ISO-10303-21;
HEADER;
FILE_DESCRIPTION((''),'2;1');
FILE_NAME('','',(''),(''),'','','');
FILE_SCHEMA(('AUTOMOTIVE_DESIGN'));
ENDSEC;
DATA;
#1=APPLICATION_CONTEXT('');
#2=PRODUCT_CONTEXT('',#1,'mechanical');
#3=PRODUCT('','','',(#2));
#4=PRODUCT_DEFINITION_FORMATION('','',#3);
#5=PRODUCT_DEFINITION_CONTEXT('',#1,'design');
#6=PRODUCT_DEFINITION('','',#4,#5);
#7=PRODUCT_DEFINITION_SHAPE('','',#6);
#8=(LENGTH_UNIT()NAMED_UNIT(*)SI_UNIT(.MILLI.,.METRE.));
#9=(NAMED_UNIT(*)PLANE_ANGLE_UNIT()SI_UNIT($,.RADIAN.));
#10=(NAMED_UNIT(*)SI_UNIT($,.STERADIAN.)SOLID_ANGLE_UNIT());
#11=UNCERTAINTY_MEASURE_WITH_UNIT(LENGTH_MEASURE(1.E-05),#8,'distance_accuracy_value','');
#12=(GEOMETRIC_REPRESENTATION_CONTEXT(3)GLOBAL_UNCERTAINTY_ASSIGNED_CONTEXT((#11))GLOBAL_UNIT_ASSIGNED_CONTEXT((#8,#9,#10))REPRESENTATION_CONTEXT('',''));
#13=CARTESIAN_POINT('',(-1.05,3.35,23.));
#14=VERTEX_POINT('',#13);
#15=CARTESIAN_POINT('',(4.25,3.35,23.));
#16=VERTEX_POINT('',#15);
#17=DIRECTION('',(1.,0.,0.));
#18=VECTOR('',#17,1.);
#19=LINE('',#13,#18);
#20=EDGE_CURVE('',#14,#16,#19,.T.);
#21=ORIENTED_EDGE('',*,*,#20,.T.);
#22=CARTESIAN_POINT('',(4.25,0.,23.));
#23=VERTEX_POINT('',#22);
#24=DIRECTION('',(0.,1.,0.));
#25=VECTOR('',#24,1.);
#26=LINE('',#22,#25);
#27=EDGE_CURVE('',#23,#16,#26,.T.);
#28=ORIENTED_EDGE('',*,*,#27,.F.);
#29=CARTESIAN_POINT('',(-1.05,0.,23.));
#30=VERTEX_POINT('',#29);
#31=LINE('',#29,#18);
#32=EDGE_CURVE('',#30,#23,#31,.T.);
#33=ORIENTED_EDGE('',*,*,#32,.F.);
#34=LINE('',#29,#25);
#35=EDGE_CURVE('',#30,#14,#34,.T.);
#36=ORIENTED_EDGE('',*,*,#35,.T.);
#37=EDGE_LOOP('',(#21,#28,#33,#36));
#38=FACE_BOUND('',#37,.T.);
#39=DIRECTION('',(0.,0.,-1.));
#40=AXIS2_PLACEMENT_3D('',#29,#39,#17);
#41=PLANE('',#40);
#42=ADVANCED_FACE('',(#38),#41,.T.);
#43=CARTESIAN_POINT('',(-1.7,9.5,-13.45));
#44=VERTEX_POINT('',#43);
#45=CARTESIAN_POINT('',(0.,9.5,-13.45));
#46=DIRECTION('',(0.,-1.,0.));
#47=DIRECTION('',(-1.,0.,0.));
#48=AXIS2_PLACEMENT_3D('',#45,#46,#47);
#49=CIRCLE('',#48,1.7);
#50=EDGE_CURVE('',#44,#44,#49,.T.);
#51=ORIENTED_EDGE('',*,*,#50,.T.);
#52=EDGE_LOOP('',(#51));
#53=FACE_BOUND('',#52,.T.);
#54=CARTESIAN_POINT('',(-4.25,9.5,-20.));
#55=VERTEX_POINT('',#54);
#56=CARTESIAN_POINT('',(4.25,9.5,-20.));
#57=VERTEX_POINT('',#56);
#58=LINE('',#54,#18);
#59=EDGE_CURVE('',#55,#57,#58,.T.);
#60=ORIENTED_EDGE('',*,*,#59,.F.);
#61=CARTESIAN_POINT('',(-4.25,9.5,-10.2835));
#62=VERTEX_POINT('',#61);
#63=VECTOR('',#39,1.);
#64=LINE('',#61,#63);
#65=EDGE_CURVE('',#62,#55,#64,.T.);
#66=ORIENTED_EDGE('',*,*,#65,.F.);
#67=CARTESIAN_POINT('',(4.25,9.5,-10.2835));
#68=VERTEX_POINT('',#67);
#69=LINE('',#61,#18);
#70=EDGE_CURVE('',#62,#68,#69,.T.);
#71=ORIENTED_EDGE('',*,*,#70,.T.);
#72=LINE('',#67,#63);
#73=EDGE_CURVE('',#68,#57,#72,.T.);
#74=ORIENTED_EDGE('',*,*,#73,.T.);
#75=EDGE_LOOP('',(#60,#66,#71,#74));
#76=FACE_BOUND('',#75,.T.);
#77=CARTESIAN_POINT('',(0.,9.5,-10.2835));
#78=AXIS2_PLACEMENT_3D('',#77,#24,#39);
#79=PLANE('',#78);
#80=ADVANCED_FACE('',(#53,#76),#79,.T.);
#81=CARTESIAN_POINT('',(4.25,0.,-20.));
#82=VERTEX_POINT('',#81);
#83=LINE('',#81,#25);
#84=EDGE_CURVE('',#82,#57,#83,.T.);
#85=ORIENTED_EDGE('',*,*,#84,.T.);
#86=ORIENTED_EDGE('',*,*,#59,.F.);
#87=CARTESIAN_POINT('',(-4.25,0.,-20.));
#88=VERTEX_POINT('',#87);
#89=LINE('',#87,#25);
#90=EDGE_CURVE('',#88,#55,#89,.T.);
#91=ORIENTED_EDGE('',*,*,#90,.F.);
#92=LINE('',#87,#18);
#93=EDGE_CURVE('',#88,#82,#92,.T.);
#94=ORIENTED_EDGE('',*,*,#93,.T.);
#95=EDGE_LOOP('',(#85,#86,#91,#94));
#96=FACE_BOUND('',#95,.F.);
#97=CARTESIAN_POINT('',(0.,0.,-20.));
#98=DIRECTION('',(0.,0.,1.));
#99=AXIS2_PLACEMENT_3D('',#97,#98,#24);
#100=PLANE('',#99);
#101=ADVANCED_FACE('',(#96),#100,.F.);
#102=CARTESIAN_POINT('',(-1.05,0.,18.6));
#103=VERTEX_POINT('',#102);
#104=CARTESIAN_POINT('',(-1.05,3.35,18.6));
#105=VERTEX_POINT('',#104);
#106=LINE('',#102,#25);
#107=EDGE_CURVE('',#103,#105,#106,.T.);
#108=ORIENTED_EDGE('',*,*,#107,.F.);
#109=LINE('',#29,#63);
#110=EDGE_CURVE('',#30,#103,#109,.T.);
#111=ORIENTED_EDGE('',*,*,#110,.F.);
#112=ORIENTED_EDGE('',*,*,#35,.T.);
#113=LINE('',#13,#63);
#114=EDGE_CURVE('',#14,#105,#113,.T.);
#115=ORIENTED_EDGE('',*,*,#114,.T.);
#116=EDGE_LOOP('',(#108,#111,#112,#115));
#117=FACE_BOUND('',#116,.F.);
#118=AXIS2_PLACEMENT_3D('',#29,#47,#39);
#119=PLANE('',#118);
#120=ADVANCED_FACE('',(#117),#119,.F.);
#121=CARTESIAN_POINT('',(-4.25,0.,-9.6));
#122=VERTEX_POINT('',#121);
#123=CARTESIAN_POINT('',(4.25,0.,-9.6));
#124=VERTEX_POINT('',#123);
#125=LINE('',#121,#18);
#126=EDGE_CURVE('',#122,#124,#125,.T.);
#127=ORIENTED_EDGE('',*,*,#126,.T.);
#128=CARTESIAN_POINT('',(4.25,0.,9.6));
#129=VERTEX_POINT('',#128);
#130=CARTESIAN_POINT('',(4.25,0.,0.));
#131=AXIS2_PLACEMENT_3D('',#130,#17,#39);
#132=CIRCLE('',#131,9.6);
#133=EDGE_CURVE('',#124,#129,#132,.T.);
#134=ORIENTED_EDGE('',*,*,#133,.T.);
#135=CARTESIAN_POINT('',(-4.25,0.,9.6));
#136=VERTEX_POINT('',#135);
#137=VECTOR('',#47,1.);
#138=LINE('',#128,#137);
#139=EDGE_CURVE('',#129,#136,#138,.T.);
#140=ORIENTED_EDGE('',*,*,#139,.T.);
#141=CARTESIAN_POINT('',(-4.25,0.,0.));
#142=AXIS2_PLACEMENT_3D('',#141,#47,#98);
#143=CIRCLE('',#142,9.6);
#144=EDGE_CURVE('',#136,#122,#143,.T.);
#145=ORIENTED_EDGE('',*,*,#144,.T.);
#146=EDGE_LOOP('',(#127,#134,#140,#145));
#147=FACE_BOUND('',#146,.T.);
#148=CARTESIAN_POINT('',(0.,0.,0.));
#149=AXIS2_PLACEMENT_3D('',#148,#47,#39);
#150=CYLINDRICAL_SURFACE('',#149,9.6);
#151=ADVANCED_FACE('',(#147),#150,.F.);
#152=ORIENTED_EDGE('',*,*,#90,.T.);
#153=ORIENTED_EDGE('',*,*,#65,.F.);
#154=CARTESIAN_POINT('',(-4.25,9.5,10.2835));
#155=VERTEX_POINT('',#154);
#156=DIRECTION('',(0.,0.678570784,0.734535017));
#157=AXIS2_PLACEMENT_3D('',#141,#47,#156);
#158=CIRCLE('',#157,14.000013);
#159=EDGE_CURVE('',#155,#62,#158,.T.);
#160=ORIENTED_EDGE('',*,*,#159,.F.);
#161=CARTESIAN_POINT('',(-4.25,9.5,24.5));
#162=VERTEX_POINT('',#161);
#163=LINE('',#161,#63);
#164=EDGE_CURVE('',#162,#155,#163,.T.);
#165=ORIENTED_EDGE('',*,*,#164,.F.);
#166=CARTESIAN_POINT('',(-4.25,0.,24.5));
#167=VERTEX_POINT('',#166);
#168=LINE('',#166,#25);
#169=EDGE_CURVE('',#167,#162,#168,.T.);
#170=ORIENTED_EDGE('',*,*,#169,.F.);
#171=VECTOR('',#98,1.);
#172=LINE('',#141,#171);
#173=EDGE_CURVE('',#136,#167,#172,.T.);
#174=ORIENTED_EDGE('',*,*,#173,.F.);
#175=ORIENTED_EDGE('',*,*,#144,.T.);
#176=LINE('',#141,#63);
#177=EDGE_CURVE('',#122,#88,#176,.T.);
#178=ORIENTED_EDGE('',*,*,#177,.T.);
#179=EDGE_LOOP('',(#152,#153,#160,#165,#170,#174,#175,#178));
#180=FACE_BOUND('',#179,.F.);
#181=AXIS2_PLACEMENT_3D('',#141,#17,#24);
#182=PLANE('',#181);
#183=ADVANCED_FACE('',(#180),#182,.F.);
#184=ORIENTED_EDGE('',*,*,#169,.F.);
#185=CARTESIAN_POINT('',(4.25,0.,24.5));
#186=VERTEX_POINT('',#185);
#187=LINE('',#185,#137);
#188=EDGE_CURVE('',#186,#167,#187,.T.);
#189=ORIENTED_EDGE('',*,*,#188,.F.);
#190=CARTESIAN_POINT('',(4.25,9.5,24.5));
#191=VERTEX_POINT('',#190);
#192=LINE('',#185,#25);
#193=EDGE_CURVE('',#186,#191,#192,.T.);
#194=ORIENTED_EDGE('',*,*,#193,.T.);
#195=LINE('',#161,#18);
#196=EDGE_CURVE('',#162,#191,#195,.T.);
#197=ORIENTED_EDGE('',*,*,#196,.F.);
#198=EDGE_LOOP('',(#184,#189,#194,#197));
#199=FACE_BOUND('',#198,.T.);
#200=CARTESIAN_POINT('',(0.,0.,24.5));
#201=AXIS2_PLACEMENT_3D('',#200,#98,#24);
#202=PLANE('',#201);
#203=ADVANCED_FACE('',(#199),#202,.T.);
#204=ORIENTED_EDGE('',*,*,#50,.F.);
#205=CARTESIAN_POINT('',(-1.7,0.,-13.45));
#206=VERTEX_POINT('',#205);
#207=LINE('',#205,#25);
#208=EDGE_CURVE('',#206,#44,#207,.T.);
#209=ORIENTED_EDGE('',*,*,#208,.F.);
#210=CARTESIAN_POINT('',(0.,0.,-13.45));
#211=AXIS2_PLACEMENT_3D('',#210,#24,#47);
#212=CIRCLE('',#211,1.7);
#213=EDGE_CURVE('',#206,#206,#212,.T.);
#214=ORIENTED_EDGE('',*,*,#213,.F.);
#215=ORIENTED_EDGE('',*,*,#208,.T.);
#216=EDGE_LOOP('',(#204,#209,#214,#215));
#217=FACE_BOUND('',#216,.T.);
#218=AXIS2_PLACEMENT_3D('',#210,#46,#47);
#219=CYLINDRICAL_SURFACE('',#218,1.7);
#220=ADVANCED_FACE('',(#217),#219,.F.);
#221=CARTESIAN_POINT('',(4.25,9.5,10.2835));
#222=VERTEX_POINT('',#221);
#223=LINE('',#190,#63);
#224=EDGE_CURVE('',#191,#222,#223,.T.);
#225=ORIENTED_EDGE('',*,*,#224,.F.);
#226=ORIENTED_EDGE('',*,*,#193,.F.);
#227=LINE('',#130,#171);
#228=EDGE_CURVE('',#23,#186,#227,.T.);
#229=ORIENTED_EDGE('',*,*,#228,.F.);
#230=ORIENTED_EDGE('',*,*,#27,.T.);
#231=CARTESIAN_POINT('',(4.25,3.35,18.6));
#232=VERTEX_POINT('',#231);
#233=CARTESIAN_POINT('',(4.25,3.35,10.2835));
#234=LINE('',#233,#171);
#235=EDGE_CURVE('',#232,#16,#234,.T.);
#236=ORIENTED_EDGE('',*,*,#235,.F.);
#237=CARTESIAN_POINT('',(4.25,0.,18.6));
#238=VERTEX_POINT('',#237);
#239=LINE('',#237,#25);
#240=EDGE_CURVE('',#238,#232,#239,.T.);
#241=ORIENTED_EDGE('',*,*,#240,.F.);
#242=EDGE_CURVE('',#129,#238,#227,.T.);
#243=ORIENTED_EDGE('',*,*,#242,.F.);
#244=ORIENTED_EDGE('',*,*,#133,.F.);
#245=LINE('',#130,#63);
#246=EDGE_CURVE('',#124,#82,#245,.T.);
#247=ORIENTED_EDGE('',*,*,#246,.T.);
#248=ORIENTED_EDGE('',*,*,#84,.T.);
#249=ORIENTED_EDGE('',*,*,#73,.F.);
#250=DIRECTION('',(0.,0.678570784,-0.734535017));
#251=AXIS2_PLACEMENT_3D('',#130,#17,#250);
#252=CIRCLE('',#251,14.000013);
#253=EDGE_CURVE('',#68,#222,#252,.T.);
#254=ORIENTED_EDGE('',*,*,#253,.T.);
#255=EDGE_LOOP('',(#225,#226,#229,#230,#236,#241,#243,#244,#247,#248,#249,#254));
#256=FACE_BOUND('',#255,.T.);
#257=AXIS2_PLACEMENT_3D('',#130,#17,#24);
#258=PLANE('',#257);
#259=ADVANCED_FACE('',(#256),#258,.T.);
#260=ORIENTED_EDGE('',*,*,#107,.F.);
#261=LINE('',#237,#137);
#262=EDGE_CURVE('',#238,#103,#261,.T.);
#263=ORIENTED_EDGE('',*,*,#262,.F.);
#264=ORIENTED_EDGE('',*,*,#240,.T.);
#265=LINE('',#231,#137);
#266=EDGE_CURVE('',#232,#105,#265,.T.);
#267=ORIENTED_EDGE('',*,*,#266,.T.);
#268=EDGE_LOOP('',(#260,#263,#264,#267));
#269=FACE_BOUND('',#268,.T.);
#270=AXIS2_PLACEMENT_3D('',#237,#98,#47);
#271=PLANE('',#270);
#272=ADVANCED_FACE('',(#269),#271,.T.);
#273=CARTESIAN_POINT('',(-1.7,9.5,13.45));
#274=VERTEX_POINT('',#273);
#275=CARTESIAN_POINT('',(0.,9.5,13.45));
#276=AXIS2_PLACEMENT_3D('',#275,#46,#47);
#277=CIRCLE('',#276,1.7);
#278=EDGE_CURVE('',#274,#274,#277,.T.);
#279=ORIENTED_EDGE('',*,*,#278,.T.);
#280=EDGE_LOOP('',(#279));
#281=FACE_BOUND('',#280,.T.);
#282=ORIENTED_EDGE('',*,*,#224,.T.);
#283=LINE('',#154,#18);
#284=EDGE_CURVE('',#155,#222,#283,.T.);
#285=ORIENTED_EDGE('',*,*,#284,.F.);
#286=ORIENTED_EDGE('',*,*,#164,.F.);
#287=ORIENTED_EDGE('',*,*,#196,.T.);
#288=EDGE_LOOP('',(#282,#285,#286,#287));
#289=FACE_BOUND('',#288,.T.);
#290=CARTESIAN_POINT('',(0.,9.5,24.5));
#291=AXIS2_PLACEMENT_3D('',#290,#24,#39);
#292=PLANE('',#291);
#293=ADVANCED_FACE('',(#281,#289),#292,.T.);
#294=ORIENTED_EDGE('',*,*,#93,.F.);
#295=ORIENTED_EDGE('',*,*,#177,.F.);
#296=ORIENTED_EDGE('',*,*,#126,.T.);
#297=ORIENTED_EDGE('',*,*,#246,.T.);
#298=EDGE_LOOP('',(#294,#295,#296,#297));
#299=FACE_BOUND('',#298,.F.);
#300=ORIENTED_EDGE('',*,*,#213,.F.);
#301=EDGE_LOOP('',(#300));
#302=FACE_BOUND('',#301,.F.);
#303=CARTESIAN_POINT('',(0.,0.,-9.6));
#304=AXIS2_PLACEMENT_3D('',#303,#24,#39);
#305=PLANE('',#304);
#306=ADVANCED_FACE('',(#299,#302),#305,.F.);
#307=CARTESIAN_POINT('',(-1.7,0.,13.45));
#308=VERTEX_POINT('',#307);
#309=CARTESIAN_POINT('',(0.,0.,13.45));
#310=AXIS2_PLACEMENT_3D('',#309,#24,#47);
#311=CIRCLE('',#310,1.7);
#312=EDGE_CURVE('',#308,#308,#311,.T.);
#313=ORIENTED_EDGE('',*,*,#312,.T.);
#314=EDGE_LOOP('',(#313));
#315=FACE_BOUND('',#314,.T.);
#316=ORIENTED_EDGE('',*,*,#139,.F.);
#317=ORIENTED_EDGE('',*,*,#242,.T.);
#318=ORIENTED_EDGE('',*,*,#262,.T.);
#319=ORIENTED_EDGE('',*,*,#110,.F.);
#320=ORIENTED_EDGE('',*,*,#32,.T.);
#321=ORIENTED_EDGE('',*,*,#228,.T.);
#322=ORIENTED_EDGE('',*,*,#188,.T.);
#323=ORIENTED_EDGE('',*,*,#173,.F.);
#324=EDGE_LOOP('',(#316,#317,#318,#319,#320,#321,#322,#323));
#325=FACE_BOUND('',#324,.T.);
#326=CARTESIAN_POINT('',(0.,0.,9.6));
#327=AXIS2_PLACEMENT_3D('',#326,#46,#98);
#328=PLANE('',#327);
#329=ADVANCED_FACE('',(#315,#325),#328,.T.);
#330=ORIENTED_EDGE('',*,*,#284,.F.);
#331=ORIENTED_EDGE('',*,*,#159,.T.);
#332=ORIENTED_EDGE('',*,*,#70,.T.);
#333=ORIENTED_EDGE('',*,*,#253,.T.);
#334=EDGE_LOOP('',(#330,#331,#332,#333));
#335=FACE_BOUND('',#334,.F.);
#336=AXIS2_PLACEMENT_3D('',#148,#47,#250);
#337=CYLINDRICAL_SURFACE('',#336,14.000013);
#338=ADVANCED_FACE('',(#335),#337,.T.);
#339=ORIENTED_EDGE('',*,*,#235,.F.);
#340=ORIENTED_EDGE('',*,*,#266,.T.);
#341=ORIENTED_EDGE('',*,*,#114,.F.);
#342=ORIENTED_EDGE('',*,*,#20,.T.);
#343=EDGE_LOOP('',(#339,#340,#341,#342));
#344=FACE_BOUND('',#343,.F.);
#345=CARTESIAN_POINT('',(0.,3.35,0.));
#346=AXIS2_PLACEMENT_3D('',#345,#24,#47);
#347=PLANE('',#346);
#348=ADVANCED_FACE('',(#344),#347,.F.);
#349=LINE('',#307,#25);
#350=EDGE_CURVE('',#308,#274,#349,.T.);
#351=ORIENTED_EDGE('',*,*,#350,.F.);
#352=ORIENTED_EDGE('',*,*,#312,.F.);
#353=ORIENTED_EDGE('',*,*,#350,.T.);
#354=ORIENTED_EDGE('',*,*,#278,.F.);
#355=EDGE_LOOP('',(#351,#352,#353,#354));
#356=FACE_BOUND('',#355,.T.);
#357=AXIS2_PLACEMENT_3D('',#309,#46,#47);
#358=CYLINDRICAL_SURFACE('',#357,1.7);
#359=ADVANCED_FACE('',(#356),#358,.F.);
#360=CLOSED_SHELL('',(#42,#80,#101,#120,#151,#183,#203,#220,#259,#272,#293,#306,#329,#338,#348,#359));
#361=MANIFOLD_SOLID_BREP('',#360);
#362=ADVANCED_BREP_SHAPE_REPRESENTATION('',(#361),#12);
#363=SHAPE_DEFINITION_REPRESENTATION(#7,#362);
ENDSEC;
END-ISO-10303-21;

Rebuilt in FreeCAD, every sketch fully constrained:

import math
import FreeCAD as App
import Part
import Sketcher
from FreeCAD import Vector


def add_polygon(sketch, points):
    """Adds a closed chain of lines whose ends are joined by coincident constraints."""
    first, n = sketch.GeometryCount, len(points)
    for a, b in zip(points, points[1:] + points[:1]):
        sketch.addGeometry(Part.LineSegment(App.Vector(*a, 0), App.Vector(*b, 0)), False)
    for i in range(n):
        sketch.addConstraint(Sketcher.Constraint("Coincident", first + i, 2, first + (i + 1) % n, 1))

doc = App.newDocument("Part")
body = doc.addObject("PartDesign::Body", "Body")

# Sketch on YZ plane
sketch1 = body.newObject("Sketcher::SketchObject", "Sketch")
sketch1.AttachmentSupport = (doc.getObject("YZ_Plane"), [""])
sketch1.MapMode = "FlatFace"
sketch1.addGeometry(Part.LineSegment(Vector(0, -10, 0), Vector(0, -20, 0)), False)
sketch1.addGeometry(Part.LineSegment(Vector(0, -20, 0), Vector(10, -20, 0)), False)
sketch1.addGeometry(Part.LineSegment(Vector(10, -20, 0), Vector(10, -10, 0)), False)
sketch1.addGeometry(Part.ArcOfCircle(Part.Circle(Vector(0, 0, 0), Vector(0, 0, 1), 14), math.radians(-47), math.radians(47)), False)
sketch1.addGeometry(Part.LineSegment(Vector(10, 10, 0), Vector(10, 24, 0)), False)
sketch1.addGeometry(Part.LineSegment(Vector(10, 24, 0), Vector(0, 24, 0)), False)
sketch1.addGeometry(Part.LineSegment(Vector(0, 24, 0), Vector(0, 10, 0)), False)
sketch1.addGeometry(Part.ArcOfCircle(Part.Circle(Vector(0, 0, 0), Vector(0, 0, 1), 10), math.radians(-90), math.radians(90)), False)
sketch1.addConstraint(Sketcher.Constraint("Coincident", 0, 2, 1, 1))
sketch1.addConstraint(Sketcher.Constraint("Coincident", 1, 2, 2, 1))
sketch1.addConstraint(Sketcher.Constraint("Coincident", 2, 2, 3, 1))
sketch1.addConstraint(Sketcher.Constraint("Coincident", 3, 2, 4, 1))
sketch1.addConstraint(Sketcher.Constraint("Coincident", 4, 2, 5, 1))
sketch1.addConstraint(Sketcher.Constraint("Coincident", 5, 2, 6, 1))
sketch1.addConstraint(Sketcher.Constraint("Coincident", 6, 2, 7, 2))
sketch1.addConstraint(Sketcher.Constraint("Coincident", 7, 1, 0, 1))
sketch1.addConstraint(Sketcher.Constraint("Vertical", 0))
sketch1.addConstraint(Sketcher.Constraint("Horizontal", 1))
sketch1.addConstraint(Sketcher.Constraint("Vertical", 2))
sketch1.addConstraint(Sketcher.Constraint("Vertical", 4))
sketch1.addConstraint(Sketcher.Constraint("Horizontal", 5))
sketch1.addConstraint(Sketcher.Constraint("Vertical", 6))
sketch1.addConstraint(Sketcher.Constraint("Coincident", 3, 3, -1, 1))
sketch1.addConstraint(Sketcher.Constraint("Coincident", 7, 3, -1, 1))
sketch1.addConstraint(Sketcher.Constraint("PointOnObject", 0, 2, -2))
sketch1.addConstraint(Sketcher.Constraint("PointOnObject", 5, 2, -2))
sketch1.addConstraint(Sketcher.Constraint("Vertical", 2, 2, 3, 2))
sketch1.addConstraint(Sketcher.Constraint("Radius", 3, 14.0))
sketch1.addConstraint(Sketcher.Constraint("Radius", 7, 9.6))
sketch1.addConstraint(Sketcher.Constraint("DistanceX", 1, 1, 1, 2, 9.5))
sketch1.addConstraint(Sketcher.Constraint("DistanceY", 0, 2, -1, 1, 20.0))
sketch1.addConstraint(Sketcher.Constraint("DistanceY", -1, 1, 4, 2, 24.5))
pad1 = body.newObject("PartDesign::Pad", "Pad")
pad1.Profile = sketch1
pad1.Length = 8.5
pad1.Midplane = True

# Sketch on XZ plane
sketch2 = body.newObject("Sketcher::SketchObject", "Sketch001")
sketch2.AttachmentSupport = (doc.getObject("XZ_Plane"), [""])
sketch2.MapMode = "FlatFace"
sketch2.addGeometry(Part.Circle(Vector(0, -13.4, 0), Vector(0, 0, 1), 1.7), False)
sketch2.addGeometry(Part.Circle(Vector(0, 13.4, 0), Vector(0, 0, 1), 1.7), False)
sketch2.addConstraint(Sketcher.Constraint("Equal", 0, 1))
sketch2.addConstraint(Sketcher.Constraint("Symmetric", 0, 3, 1, 3, -1, 1))
sketch2.addConstraint(Sketcher.Constraint("PointOnObject", 0, 3, -2))
sketch2.addConstraint(Sketcher.Constraint("Diameter", 0, 3.4))
sketch2.addConstraint(Sketcher.Constraint("DistanceY", 0, 3, -1, 1, 13.45))
pocket1 = body.newObject("PartDesign::Pocket", "Pocket")
pocket1.Profile = sketch2
pocket1.Type = "ThroughAll"

# Sketch on XZ plane
sketch3 = body.newObject("Sketcher::SketchObject", "Sketch002")
sketch3.AttachmentSupport = (doc.getObject("XZ_Plane"), [""])
sketch3.MapMode = "FlatFace"
add_polygon(sketch3, [(-1.1, 18.6), (-1.1, 23), (4.2, 23), (4.2, 18.6)])  # lines 0-3
sketch3.addConstraint(Sketcher.Constraint("Vertical", 0))
sketch3.addConstraint(Sketcher.Constraint("Horizontal", 1))
sketch3.addConstraint(Sketcher.Constraint("Vertical", 2))
sketch3.addConstraint(Sketcher.Constraint("Horizontal", 3))
sketch3.addConstraint(Sketcher.Constraint("DistanceX", 1, 1, 1, 2, 5.3))
sketch3.addConstraint(Sketcher.Constraint("DistanceY", 0, 1, 0, 2, 4.4))
sketch3.addConstraint(Sketcher.Constraint("DistanceY", -1, 1, 2, 2, 18.6))
sketch3.addConstraint(Sketcher.Constraint("DistanceX", 0, 2, -1, 1, 1.05))
pocket2 = body.newObject("PartDesign::Pocket", "Pocket001")
pocket2.Profile = sketch3
pocket2.Length = 3.35

doc.recompute()
